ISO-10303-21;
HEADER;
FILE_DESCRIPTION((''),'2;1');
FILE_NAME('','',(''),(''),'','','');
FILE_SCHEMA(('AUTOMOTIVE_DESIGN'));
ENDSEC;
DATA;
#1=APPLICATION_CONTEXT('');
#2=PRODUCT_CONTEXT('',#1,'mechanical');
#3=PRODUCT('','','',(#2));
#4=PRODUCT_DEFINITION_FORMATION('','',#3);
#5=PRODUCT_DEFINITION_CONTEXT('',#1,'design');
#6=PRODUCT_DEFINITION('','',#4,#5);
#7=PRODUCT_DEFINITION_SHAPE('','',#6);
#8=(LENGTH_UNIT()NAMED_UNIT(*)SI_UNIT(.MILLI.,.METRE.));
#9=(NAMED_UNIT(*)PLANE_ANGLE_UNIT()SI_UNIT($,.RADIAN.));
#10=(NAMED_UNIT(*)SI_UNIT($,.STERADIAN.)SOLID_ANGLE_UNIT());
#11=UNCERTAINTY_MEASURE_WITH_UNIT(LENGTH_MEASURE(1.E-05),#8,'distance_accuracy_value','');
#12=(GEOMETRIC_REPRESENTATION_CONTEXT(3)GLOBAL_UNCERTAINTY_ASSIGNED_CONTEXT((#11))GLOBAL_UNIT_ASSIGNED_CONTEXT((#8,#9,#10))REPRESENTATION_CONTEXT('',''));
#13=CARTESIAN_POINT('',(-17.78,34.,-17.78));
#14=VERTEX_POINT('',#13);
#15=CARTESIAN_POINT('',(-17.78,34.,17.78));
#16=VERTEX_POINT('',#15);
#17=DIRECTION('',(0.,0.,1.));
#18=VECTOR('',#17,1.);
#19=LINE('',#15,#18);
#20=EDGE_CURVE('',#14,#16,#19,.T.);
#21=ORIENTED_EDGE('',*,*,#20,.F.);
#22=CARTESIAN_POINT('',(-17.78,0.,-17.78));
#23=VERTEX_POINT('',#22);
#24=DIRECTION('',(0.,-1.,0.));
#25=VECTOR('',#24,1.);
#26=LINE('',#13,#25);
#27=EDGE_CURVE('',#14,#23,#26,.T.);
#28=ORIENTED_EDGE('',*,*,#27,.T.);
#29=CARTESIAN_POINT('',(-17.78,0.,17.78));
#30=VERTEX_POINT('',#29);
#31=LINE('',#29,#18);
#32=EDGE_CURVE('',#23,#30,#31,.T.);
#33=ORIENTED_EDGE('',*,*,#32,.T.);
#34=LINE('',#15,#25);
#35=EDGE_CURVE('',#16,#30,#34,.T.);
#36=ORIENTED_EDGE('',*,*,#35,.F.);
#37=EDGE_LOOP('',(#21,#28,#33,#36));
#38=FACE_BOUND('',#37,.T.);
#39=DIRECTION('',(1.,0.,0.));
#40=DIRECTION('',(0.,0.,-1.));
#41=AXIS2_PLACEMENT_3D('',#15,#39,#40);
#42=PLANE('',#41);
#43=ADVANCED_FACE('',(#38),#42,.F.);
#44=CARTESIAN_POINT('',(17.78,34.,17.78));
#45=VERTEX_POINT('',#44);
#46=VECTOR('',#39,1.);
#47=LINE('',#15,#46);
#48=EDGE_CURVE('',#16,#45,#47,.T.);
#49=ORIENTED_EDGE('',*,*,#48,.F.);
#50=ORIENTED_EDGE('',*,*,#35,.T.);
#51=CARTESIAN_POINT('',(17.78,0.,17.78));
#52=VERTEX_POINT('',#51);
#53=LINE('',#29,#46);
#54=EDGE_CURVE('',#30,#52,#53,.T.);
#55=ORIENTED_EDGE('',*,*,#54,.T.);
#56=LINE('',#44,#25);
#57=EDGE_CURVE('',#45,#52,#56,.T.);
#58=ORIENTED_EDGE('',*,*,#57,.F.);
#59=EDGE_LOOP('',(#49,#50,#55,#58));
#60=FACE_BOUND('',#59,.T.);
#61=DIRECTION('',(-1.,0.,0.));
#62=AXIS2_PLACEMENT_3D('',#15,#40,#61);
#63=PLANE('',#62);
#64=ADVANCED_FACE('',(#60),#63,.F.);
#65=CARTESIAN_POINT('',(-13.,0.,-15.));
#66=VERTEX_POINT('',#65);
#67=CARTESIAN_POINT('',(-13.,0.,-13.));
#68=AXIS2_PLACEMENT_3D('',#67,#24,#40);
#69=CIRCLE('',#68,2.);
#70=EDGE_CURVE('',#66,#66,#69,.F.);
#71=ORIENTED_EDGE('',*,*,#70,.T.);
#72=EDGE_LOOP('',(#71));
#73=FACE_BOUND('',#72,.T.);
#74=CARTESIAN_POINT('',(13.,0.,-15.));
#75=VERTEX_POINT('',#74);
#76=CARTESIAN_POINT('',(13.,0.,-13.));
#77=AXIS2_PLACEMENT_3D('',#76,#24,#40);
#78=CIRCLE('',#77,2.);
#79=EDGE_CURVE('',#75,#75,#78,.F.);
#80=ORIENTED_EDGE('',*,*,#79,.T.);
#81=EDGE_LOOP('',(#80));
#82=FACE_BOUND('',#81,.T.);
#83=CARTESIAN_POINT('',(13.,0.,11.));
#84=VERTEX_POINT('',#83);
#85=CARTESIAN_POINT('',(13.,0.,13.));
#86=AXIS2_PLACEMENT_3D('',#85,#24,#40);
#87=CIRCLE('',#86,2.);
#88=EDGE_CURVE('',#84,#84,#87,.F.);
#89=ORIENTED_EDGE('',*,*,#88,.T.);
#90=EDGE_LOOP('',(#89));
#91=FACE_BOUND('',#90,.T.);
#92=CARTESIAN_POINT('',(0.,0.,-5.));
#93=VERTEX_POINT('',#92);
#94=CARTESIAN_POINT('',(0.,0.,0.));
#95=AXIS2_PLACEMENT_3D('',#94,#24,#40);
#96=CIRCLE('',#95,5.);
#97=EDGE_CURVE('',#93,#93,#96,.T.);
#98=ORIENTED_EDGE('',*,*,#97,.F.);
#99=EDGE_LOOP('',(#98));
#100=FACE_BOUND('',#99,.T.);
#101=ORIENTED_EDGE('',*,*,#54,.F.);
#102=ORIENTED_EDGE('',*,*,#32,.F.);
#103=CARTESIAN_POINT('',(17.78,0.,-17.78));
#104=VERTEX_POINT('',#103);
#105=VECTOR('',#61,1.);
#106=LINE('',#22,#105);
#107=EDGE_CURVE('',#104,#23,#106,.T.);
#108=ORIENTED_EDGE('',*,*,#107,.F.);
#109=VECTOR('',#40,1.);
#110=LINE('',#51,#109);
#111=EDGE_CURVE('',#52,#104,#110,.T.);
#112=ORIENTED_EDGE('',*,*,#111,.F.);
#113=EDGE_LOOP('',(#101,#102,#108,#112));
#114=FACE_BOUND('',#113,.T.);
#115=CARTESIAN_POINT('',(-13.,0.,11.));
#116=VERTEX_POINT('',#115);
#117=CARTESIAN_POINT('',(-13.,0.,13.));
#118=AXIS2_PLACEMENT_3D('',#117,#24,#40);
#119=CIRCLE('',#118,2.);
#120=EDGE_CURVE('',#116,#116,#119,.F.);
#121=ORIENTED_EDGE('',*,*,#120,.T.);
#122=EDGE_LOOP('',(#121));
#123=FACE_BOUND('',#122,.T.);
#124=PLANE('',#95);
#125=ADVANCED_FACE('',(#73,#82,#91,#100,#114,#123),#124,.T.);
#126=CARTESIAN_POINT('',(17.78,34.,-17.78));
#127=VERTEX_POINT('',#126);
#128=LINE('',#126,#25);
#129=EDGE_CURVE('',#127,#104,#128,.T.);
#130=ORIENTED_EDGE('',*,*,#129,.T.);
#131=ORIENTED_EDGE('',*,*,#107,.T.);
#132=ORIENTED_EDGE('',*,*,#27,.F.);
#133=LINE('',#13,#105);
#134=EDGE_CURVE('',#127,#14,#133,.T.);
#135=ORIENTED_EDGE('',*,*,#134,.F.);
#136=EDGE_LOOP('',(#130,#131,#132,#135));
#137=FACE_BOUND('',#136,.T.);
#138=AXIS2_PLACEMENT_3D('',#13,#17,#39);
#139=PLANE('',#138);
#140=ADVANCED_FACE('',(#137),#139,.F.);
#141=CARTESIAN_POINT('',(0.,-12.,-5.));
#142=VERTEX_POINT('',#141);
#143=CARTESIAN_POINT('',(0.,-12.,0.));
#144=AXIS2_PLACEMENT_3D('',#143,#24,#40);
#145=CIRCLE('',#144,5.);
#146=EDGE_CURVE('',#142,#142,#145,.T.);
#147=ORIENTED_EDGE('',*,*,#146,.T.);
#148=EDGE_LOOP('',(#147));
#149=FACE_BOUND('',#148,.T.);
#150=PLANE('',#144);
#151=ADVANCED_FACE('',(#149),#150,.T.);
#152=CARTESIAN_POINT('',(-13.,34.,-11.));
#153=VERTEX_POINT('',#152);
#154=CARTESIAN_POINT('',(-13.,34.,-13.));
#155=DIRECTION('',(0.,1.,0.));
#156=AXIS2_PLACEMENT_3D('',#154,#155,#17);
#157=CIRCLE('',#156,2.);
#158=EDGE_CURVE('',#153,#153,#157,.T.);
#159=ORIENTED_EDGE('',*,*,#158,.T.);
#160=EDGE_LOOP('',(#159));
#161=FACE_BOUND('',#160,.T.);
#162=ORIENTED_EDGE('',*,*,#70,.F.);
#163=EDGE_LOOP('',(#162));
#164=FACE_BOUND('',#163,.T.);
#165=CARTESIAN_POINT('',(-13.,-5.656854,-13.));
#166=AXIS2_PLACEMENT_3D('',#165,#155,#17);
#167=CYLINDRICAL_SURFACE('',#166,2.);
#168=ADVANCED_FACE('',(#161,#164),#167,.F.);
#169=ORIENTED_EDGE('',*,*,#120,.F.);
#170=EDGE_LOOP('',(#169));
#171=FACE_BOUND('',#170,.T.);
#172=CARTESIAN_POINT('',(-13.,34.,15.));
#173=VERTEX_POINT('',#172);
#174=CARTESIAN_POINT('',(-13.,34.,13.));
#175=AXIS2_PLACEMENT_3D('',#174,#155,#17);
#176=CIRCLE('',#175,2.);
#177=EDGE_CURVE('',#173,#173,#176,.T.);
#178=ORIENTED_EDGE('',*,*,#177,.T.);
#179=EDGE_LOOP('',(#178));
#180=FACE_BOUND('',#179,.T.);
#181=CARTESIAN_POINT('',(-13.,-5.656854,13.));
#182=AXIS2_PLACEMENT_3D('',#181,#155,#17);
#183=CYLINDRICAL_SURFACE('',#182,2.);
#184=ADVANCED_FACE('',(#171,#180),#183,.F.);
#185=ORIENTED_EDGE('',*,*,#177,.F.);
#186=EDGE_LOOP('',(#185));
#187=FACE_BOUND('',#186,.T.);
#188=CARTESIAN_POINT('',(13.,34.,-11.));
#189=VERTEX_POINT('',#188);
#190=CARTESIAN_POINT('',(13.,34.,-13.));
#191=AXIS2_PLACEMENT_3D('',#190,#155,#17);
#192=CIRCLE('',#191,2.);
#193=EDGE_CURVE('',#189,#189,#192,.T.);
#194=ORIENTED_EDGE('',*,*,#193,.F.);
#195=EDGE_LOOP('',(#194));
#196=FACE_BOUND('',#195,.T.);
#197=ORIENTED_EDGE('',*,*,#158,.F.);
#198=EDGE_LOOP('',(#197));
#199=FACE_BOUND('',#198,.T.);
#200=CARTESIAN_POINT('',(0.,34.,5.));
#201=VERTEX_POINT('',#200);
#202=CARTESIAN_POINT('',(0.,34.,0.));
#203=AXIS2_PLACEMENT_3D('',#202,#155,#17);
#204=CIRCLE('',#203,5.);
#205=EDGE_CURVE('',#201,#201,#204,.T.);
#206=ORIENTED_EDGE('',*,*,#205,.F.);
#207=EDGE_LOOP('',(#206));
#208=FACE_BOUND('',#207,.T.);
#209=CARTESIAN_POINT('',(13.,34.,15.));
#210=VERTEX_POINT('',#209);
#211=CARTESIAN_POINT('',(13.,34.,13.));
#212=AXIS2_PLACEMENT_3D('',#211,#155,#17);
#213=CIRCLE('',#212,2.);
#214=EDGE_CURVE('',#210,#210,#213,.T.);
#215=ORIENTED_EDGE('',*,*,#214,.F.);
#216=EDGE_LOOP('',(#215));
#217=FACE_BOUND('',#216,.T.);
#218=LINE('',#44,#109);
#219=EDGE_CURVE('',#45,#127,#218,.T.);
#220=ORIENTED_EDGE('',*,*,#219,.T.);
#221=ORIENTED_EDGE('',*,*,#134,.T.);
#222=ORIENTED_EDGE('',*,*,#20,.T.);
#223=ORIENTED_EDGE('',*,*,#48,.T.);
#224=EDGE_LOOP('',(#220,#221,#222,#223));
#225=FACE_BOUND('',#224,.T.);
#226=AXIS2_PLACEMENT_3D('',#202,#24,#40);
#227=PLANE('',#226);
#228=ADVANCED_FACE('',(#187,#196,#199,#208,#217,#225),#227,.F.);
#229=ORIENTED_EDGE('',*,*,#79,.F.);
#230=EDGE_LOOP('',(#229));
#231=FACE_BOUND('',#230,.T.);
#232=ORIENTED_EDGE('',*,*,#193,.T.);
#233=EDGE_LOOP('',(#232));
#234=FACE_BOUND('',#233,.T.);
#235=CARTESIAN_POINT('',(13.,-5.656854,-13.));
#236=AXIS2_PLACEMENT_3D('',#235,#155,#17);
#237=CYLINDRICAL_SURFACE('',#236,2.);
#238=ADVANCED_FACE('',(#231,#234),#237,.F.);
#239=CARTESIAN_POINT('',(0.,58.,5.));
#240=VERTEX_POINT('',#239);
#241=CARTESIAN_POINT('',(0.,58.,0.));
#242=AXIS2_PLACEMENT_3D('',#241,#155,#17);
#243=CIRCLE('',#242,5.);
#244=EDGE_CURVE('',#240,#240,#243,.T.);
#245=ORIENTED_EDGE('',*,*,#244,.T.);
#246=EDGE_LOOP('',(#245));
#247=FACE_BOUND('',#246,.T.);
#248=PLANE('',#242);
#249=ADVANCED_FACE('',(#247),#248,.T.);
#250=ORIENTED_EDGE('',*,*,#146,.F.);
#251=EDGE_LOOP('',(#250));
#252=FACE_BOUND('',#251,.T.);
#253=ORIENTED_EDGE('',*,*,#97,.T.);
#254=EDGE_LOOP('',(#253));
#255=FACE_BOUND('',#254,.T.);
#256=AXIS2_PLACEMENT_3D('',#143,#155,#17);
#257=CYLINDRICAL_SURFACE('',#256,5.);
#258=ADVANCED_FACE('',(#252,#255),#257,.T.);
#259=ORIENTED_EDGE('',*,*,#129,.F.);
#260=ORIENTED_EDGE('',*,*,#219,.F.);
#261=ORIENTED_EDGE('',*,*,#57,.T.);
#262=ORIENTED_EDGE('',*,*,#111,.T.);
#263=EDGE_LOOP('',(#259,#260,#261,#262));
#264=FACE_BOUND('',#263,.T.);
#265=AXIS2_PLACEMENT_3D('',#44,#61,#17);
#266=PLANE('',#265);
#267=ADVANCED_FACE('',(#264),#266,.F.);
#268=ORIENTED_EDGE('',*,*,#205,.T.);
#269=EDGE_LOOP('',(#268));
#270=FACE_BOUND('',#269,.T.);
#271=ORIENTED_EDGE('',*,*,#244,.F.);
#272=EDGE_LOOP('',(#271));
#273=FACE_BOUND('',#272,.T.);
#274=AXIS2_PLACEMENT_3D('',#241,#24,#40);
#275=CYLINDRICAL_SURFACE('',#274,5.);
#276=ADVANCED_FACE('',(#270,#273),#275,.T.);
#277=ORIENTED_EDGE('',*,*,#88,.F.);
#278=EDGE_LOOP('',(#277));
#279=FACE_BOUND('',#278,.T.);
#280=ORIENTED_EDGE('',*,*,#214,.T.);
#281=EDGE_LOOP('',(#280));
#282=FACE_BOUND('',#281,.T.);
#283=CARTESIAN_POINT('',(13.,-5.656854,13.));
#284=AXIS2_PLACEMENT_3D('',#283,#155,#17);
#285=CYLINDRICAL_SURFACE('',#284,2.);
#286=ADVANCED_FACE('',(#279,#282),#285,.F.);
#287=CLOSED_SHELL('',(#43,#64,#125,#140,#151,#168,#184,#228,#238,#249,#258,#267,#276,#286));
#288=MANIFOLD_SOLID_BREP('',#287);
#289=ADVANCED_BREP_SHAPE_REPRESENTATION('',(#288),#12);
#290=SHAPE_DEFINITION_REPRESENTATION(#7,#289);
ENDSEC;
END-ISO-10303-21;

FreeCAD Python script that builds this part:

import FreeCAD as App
import Part
import Sketcher
from FreeCAD import Vector
Q = App.Units.Quantity


def add_polygon(sketch, points):
    """Adds a closed chain of lines whose ends are joined by coincident constraints."""
    first, n = sketch.GeometryCount, len(points)
    for a, b in zip(points, points[1:] + points[:1]):
        sketch.addGeometry(Part.LineSegment(App.Vector(*a, 0), App.Vector(*b, 0)), False)
    for i in range(n):
        sketch.addConstraint(Sketcher.Constraint("Coincident", first + i, 2, first + (i + 1) % n, 1))

doc = App.newDocument("Part")
body = doc.addObject("PartDesign::Body", "Body")

# Sketch on XZ plane
sketch1 = body.newObject("Sketcher::SketchObject", "Sketch")
sketch1.AttachmentSupport = (doc.getObject("XZ_Plane"), [""])
sketch1.MapMode = "FlatFace"
add_polygon(sketch1, [(-18, -18), (-18, 18), (18, 18), (18, -18)])  # lines 0-3
sketch1.addConstraint([
    Sketcher.Constraint("Vertical", 0),
    Sketcher.Constraint("Horizontal", 1),
    Sketcher.Constraint("Vertical", 2),
    Sketcher.Constraint("Horizontal", 3),
    Sketcher.Constraint("Symmetric", 0, 2, 2, 2, -1, 1),
    Sketcher.Constraint("Equal", 3, 0),
    Sketcher.Constraint("DistanceX", 1, 1, 1, 2, Q("35.56 mm")),
])
pad1 = body.newObject("PartDesign::Pad", "Pad")
pad1.Profile = sketch1
pad1.Length = 34
pad1.Reversed = True

# Sketch on XZ plane
sketch2 = body.newObject("Sketcher::SketchObject", "Sketch001")
sketch2.AttachmentSupport = (doc.getObject("XZ_Plane"), [""])
sketch2.MapMode = "FlatFace"
sketch2.AttachmentOffset = App.Placement(Vector(0, 0, -34), App.Rotation())
sketch2.addGeometry(Part.Circle(Vector(0, 0, 0), Vector(0, 0, 1), 5), False)
sketch2.addConstraint([
    Sketcher.Constraint("Coincident", 0, 3, -1, 1),
    Sketcher.Constraint("Diameter", 0, Q("10 mm")),
])
pad2 = body.newObject("PartDesign::Pad", "Pad001")
pad2.Profile = sketch2
pad2.Length = 24
pad2.Reversed = True

# Sketch on XZ plane
sketch3 = body.newObject("Sketcher::SketchObject", "Sketch002")
sketch3.AttachmentSupport = (doc.getObject("XZ_Plane"), [""])
sketch3.MapMode = "FlatFace"
sketch3.addGeometry(Part.Circle(Vector(0, 0, 0), Vector(0, 0, 1), 5), False)
sketch3.addConstraint([
    Sketcher.Constraint("Coincident", 0, 3, -1, 1),
    Sketcher.Constraint("Diameter", 0, Q("10 mm")),
])
pad3 = body.newObject("PartDesign::Pad", "Pad002")
pad3.Profile = sketch3
pad3.Length = 12

# Sketch on XZ plane
sketch4 = body.newObject("Sketcher::SketchObject", "Sketch003")
sketch4.AttachmentSupport = (doc.getObject("XZ_Plane"), [""])
sketch4.MapMode = "FlatFace"
sketch4.AttachmentOffset = App.Placement(Vector(0, 0, -34), App.Rotation())
sketch4.addGeometry([
    Part.Circle(Vector(-13, -13, 0), Vector(0, 0, 1), 2),
    Part.Circle(Vector(13, -13, 0), Vector(0, 0, 1), 2),
    Part.Circle(Vector(13, 13, 0), Vector(0, 0, 1), 2),
    Part.Circle(Vector(-13, 13, 0), Vector(0, 0, 1), 2),
], False)
sketch4.addConstraint([
    Sketcher.Constraint("Equal", 0, 1),
    Sketcher.Constraint("Equal", 1, 2),
    Sketcher.Constraint("Equal", 2, 3),
    Sketcher.Constraint("Symmetric", 0, 3, 2, 3, -1, 1),
    Sketcher.Constraint("Symmetric", 1, 3, 3, 3, -1, 1),
    Sketcher.Constraint("Symmetric", 0, 3, 1, 3, -2),
    Sketcher.Constraint("Diameter", 0, Q("4 mm")),
    Sketcher.Constraint("DistanceX", 0, 3, -1, 1, Q("13 mm")),
    Sketcher.Constraint("DistanceY", 0, 3, -1, 1, Q("13 mm")),
])
pocket1 = body.newObject("PartDesign::Pocket", "Pocket")
pocket1.Profile = sketch4
pocket1.Length = 34
pocket1.Reversed = True

doc.recompute()
